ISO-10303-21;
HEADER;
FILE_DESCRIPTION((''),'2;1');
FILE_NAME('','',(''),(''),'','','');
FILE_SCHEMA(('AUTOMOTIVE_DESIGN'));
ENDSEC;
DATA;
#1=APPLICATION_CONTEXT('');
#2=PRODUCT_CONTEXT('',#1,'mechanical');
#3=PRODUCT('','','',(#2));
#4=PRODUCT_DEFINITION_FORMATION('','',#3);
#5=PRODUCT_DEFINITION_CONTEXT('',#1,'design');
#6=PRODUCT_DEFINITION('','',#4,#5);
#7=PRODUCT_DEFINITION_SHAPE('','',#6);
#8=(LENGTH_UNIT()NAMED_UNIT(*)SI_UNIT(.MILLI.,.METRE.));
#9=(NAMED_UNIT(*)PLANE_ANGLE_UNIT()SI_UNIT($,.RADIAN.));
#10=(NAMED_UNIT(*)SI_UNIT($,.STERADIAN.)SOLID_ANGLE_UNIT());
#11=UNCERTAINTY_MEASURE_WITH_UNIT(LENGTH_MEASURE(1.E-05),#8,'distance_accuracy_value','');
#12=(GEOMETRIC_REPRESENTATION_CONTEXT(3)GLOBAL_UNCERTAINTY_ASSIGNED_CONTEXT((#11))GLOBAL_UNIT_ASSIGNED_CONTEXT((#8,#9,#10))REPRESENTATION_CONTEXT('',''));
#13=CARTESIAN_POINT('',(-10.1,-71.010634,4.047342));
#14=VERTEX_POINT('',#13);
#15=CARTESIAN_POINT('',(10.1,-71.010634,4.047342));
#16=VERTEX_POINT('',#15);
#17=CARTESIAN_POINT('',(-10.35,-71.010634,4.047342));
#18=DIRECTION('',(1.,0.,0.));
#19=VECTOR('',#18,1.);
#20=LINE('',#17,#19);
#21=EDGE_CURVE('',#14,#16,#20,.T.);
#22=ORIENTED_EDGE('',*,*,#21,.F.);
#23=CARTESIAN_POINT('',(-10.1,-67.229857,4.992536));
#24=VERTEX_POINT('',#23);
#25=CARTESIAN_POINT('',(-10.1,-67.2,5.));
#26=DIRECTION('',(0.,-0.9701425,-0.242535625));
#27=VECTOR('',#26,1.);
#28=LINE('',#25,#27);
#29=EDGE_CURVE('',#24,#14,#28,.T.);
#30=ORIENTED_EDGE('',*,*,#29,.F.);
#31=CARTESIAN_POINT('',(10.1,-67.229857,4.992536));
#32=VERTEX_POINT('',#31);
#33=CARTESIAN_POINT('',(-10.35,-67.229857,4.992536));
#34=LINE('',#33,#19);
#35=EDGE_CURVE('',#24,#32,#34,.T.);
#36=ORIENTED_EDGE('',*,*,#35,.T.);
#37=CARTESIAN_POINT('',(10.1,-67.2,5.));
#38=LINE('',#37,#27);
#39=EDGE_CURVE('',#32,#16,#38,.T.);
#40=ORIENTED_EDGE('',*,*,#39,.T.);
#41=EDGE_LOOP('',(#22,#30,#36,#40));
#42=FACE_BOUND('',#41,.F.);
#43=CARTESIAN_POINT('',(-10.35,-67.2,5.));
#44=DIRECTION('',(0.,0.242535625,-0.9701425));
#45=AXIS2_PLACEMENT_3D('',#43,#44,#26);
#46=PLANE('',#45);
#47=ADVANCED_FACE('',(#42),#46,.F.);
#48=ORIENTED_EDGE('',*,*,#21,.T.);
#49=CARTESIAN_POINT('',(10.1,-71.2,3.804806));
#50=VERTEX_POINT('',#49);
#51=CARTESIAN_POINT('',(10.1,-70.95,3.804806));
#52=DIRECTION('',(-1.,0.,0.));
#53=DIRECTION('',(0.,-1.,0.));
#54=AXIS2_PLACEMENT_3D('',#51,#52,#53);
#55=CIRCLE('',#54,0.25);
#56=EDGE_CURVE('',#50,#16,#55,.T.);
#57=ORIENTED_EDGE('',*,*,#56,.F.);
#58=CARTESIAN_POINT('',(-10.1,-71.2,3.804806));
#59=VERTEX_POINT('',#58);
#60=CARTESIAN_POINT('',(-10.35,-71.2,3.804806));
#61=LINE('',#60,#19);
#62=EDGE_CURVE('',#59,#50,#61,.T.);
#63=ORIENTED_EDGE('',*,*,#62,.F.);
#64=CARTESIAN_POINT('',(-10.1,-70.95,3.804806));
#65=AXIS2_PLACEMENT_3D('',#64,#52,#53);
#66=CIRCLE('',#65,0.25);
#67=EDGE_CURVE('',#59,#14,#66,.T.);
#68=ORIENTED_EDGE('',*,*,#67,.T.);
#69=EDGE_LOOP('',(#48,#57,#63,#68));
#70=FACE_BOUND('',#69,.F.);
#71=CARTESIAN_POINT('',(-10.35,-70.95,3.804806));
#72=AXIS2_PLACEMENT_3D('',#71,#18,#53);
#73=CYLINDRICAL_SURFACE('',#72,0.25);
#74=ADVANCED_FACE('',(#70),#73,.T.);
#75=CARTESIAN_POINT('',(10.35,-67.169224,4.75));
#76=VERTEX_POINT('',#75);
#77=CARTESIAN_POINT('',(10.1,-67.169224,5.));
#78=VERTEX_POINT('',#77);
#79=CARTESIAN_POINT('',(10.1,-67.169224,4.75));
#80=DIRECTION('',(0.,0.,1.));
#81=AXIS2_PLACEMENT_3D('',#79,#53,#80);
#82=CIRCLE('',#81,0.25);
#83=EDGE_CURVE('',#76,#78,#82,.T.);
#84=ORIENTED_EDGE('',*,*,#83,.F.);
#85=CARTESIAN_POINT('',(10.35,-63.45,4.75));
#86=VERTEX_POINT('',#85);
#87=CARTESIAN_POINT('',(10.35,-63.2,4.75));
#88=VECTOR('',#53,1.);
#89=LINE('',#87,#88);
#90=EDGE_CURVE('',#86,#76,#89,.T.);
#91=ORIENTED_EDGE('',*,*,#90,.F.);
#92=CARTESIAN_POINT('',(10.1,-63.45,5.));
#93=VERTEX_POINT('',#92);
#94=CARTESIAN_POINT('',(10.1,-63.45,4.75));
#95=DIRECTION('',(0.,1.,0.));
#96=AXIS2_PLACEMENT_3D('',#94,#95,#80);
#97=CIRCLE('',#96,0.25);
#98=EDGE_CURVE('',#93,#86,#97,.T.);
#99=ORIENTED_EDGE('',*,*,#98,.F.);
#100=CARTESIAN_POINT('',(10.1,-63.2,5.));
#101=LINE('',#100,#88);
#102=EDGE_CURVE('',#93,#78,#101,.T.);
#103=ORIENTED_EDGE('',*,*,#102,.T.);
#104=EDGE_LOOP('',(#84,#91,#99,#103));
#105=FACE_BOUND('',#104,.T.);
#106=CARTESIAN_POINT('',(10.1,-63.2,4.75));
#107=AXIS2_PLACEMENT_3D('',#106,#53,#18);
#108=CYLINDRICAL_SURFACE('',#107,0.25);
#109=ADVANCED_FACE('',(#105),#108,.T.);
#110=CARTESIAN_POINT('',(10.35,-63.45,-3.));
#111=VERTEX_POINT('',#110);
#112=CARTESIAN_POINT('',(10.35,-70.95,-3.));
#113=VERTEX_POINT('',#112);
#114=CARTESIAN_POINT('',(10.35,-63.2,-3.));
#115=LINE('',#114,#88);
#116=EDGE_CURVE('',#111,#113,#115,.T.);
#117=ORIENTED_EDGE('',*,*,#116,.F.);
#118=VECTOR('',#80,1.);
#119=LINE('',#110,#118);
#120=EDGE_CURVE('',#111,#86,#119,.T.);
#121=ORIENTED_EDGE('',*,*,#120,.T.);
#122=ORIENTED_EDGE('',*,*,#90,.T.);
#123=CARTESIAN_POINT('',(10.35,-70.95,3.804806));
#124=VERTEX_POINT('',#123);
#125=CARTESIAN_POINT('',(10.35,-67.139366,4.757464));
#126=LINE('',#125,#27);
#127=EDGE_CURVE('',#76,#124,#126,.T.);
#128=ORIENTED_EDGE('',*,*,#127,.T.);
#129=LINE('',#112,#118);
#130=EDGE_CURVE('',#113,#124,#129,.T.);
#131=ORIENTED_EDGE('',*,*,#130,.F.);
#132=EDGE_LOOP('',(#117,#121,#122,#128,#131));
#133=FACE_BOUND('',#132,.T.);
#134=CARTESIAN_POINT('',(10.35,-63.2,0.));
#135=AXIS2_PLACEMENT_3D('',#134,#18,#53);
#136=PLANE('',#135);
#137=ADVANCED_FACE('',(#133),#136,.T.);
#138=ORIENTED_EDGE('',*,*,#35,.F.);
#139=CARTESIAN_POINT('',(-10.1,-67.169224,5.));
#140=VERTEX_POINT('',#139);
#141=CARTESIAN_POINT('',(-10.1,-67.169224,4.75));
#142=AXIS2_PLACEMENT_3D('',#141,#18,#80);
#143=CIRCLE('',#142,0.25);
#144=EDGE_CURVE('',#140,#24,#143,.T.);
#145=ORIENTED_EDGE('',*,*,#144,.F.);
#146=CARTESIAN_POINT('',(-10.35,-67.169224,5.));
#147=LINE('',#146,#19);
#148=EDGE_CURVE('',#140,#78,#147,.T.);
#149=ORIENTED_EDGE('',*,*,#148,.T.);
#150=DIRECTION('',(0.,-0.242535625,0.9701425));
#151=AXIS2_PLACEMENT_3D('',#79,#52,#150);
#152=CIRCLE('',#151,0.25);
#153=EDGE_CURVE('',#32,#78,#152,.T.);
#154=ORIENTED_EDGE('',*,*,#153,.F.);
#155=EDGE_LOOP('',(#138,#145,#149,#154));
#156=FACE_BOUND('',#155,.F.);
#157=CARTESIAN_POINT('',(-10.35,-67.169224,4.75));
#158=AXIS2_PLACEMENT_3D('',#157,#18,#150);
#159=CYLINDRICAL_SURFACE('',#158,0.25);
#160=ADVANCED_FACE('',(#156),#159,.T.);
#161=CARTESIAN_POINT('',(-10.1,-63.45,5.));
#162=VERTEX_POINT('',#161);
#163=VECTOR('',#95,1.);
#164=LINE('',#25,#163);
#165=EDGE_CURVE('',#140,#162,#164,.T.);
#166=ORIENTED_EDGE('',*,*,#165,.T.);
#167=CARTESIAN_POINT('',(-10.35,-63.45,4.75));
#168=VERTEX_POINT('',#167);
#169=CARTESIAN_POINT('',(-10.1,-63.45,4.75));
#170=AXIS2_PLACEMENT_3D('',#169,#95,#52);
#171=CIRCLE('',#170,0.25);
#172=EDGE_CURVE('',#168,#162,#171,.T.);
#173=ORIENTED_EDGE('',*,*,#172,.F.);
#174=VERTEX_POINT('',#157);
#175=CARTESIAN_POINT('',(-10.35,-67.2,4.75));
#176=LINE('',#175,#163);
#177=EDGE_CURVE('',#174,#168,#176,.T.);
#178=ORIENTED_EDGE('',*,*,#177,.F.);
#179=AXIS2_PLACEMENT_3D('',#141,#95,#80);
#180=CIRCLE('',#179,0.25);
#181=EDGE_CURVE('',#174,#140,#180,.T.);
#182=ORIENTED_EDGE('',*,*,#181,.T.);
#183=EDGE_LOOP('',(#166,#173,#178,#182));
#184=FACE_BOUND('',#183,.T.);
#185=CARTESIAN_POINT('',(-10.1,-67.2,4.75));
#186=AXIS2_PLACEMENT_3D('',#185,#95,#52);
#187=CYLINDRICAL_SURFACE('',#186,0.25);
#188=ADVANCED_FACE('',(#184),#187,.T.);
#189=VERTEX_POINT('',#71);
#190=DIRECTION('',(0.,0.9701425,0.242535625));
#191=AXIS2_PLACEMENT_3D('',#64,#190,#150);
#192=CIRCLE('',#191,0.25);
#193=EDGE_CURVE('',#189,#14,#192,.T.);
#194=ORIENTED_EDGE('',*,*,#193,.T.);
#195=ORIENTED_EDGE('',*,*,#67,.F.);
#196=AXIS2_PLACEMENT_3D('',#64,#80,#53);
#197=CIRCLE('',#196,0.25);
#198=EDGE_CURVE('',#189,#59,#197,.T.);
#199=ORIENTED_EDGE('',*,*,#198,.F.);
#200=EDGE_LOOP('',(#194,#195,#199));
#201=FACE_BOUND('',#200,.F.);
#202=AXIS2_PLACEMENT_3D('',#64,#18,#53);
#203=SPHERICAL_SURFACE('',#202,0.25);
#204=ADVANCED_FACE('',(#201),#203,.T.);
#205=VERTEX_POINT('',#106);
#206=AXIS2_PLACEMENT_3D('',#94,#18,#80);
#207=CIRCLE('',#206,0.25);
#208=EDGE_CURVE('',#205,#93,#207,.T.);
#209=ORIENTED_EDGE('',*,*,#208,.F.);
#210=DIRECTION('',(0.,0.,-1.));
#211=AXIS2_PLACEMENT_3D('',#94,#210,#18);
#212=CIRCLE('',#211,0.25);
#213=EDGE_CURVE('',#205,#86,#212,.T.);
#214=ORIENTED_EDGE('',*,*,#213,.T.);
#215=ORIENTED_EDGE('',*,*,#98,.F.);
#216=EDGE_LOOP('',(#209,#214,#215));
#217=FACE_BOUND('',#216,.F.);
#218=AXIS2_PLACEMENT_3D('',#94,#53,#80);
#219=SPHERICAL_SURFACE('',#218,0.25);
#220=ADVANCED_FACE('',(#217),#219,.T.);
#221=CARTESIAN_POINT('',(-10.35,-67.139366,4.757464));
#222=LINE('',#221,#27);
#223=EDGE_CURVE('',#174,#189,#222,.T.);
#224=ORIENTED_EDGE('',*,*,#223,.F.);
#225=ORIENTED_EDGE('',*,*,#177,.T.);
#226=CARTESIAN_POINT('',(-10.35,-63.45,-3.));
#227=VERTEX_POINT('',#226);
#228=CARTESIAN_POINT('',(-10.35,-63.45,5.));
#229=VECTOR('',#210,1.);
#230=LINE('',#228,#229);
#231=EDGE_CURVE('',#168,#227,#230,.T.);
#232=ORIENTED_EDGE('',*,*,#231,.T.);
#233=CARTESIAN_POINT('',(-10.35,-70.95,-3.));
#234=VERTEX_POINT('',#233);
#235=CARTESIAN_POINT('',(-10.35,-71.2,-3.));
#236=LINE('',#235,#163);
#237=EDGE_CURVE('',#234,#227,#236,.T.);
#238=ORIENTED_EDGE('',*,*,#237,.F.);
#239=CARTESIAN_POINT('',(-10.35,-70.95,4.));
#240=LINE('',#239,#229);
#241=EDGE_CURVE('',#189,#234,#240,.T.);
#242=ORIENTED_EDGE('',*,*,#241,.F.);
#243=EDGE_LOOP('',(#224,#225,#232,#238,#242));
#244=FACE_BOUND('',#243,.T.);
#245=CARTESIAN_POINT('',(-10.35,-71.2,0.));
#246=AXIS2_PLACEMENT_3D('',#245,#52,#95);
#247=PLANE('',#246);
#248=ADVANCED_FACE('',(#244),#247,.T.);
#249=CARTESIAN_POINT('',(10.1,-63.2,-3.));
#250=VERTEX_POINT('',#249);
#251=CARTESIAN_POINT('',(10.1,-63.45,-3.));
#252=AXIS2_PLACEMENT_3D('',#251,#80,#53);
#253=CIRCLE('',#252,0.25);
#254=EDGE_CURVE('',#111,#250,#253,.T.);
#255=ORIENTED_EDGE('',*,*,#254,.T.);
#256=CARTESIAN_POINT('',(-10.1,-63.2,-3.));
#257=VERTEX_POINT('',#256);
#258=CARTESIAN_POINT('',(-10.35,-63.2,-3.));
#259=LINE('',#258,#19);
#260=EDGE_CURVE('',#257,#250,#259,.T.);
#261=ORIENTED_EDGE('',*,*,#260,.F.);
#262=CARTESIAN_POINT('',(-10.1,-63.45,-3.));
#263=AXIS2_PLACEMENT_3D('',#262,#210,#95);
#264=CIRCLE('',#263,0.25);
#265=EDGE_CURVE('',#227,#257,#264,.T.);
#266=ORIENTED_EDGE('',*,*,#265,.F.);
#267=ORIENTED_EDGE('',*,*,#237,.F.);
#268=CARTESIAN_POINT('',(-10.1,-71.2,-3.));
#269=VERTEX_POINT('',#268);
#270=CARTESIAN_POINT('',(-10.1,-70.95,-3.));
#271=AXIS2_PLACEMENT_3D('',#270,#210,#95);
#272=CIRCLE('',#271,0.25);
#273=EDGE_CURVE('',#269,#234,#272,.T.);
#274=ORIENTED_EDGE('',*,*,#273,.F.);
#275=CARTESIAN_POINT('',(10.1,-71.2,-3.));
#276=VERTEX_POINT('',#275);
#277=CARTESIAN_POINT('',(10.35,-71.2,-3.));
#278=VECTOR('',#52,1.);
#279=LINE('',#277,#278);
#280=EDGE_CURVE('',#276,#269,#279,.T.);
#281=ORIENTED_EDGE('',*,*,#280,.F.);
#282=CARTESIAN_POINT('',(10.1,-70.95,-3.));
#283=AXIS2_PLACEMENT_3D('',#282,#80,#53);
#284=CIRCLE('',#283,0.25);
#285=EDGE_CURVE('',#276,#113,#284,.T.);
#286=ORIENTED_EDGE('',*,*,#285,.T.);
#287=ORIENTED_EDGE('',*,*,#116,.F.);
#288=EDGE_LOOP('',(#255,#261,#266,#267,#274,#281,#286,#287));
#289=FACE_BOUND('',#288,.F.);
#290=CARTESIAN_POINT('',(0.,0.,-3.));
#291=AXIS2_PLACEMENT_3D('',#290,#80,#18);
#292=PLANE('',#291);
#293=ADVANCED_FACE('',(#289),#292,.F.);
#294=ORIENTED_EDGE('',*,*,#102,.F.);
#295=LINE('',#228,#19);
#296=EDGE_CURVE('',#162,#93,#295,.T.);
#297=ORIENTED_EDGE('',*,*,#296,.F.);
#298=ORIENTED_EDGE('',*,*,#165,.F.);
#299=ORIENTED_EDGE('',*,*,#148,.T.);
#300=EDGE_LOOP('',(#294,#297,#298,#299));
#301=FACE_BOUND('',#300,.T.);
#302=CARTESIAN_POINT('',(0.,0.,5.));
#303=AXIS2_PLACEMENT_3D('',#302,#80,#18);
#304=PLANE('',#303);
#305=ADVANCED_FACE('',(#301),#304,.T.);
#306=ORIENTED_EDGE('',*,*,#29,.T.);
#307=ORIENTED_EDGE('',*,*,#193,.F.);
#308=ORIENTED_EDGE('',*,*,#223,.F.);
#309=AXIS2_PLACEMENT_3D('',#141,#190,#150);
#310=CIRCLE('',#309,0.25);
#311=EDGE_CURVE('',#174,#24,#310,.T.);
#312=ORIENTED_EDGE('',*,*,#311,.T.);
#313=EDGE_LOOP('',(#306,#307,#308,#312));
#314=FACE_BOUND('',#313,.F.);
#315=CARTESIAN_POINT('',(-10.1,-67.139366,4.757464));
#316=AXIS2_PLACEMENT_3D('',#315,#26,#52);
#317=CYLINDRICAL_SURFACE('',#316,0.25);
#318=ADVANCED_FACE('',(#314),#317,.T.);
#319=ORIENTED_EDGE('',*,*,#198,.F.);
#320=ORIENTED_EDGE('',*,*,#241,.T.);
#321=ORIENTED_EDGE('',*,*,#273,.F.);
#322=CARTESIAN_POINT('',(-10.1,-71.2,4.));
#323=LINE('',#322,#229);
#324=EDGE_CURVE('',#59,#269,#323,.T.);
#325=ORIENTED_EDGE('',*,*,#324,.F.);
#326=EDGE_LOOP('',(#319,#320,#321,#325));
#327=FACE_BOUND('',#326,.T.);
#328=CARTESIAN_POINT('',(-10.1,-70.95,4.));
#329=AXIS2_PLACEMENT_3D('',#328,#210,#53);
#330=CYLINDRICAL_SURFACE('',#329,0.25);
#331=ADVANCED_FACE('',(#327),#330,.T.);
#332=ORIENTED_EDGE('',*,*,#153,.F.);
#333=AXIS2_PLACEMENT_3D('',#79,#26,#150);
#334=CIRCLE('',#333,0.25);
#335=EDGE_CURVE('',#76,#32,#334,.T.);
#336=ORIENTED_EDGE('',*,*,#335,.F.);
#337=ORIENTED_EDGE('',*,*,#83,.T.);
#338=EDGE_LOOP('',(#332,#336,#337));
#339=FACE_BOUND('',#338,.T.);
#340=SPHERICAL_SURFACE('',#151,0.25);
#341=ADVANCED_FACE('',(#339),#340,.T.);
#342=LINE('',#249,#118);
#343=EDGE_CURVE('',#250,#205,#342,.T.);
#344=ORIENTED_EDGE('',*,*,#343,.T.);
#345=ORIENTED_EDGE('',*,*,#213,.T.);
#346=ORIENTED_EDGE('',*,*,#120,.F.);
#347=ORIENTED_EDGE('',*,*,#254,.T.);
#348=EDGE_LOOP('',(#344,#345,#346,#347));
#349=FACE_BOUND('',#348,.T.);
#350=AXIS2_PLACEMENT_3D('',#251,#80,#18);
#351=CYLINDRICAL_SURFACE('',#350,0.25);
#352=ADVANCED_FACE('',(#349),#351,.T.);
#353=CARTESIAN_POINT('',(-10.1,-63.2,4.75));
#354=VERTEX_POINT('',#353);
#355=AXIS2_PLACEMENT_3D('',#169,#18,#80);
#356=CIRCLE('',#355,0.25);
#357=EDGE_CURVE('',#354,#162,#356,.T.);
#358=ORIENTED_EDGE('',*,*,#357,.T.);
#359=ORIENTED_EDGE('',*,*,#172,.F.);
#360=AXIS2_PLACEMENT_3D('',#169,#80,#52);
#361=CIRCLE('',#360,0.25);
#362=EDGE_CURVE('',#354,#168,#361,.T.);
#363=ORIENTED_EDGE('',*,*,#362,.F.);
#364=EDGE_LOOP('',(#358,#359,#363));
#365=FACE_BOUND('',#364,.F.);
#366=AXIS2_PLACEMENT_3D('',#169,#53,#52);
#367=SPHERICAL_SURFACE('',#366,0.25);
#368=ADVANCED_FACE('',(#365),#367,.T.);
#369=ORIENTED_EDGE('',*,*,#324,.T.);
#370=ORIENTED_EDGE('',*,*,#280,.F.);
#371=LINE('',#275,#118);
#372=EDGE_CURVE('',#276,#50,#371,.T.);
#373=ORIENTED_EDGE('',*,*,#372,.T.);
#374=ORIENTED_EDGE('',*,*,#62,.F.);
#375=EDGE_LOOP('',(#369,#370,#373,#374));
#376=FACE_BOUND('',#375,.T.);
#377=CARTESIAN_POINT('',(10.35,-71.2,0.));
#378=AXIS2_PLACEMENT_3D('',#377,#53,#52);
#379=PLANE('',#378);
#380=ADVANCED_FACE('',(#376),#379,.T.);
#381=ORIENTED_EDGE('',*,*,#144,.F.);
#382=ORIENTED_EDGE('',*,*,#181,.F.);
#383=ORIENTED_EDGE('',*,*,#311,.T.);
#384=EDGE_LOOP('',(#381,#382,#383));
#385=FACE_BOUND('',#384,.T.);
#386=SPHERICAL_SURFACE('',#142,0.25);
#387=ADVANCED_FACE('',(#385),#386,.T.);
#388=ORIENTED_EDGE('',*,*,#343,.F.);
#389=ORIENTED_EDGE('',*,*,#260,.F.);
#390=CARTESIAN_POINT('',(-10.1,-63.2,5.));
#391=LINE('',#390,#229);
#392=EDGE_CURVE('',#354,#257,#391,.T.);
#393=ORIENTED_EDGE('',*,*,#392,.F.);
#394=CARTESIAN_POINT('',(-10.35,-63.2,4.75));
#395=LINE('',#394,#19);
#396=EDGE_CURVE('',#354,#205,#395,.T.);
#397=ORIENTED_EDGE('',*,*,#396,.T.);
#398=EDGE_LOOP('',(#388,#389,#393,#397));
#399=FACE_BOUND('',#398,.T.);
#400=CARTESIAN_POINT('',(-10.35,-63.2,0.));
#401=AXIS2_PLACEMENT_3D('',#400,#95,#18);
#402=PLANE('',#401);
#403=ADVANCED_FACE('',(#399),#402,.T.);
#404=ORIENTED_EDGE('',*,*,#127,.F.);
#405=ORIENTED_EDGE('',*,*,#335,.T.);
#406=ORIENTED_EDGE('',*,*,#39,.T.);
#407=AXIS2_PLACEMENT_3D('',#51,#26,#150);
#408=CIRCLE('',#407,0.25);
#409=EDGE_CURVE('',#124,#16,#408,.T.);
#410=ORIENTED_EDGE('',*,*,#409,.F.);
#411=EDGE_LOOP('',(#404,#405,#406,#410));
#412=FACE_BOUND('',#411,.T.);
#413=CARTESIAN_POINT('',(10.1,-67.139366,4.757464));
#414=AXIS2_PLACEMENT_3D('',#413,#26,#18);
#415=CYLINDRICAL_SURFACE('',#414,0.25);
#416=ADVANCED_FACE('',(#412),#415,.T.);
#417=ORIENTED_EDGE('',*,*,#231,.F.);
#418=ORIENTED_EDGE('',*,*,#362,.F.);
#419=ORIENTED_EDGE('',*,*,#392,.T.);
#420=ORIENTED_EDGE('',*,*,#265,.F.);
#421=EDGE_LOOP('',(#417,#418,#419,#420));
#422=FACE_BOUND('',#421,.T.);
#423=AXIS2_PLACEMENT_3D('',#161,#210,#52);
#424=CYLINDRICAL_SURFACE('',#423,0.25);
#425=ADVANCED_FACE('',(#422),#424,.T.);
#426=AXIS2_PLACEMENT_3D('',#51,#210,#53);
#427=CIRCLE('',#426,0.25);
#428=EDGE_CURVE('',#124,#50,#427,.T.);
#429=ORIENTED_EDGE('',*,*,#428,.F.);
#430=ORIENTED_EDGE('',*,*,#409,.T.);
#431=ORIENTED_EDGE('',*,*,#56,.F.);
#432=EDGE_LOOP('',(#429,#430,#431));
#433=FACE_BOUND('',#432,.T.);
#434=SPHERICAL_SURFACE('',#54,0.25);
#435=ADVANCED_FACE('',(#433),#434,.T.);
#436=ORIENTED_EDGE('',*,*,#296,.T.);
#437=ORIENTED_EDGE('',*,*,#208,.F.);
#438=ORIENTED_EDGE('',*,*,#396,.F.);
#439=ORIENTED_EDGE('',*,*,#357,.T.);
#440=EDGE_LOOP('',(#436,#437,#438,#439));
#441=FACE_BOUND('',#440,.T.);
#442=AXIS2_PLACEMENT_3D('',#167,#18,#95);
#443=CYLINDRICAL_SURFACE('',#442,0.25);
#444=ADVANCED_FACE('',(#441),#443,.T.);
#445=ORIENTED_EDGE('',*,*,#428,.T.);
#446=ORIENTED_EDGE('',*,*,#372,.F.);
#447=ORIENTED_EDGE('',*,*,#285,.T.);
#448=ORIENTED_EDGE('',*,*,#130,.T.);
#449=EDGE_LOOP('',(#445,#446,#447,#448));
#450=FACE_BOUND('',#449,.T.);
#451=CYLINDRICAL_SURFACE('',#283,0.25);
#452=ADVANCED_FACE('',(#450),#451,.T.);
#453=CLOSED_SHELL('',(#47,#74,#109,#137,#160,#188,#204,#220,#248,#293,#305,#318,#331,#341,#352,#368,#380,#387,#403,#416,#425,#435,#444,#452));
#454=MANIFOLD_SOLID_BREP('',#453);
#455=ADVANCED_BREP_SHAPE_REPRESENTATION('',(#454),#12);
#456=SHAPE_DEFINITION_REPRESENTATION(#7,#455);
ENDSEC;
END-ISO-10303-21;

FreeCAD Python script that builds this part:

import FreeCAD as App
import Part
import Sketcher

V = App.Vector
Q = App.Units.Quantity


def edges_at(feature, points):
    """Names of the edges that pass closest to the given points."""
    edges = feature.Shape.Edges
    near = lambda p: min(range(len(edges)), key=lambda i: edges[i].distToShape(Part.Vertex(*p))[0])
    return sorted({f"Edge{near(p) + 1}" for p in points})

doc = App.newDocument("Part")
params = doc.addObject("Spreadsheet::Sheet", "Params")
for row, (alias, value) in enumerate([
    ("sketch1_height", "8 mm"),
    ("sketch1_width", "20.7 mm"),
    ("pad1_length", "5 mm"),
    ("pad1_length2", "3 mm"),
    ("sketch2_width", "4 mm"),
    ("sketch2_height", "1 mm"),
    ("fillet_radius", "0.25 mm"),
], start=1):
    params.set(f"A{row}", alias)
    params.set(f"B{row}", "=" + value)
    params.setAlias(f"B{row}", alias)

body = doc.addObject("PartDesign::Body", "Body")

# Sketch on XY plane
sketch1 = body.newObject("Sketcher::SketchObject", "Sketch")
sketch1.AttachmentSupport = (doc.getObject("XY_Plane"), [""])
sketch1.MapMode = "FlatFace"
sketch1.addGeometry([
    Part.LineSegment(V(-10, -71, 0), V(10, -71, 0)),
    Part.LineSegment(V(10, -71, 0), V(10, -63, 0)),
    Part.LineSegment(V(10, -63, 0), V(-10, -63, 0)),
    Part.LineSegment(V(-10, -63, 0), V(-10, -71, 0)),
], False)
sketch1.addConstraint([
    Sketcher.Constraint("Coincident", 0, 2, 1, 1),
    Sketcher.Constraint("Coincident", 1, 2, 2, 1),
    Sketcher.Constraint("Coincident", 2, 2, 3, 1),
    Sketcher.Constraint("Coincident", 3, 2, 0, 1),
    Sketcher.Constraint("Horizontal", 0),
    Sketcher.Constraint("Vertical", 1),
    Sketcher.Constraint("Horizontal", 2),
    Sketcher.Constraint("Vertical", 3),
    Sketcher.Constraint("DistanceY", 1, 1, 1, 2, Q("8 mm")),
    Sketcher.Constraint("DistanceX", 0, 1, 0, 2, Q("20.7 mm")),
    Sketcher.Constraint("DistanceY", 0, 2, -1, 1, Q("71.2 mm")),
    Sketcher.Constraint("DistanceX", -1, 1, 0, 2, Q("10.35 mm")),
])
sketch1.setExpression("Constraints[8]", "Params.sketch1_height")
sketch1.setExpression("Constraints[9]", "Params.sketch1_width")
pad1 = body.newObject("PartDesign::Pad", "Pad")
pad1.Profile = sketch1
pad1.Type = "TwoLengths"
pad1.setExpression("Length", "Params.pad1_length")
pad1.setExpression("Length2", "Params.pad1_length2")

# Sketch on YZ plane
sketch2 = body.newObject("Sketcher::SketchObject", "Sketch001")
sketch2.AttachmentSupport = (doc.getObject("YZ_Plane"), [""])
sketch2.MapMode = "FlatFace"
sketch2.AttachmentOffset = App.Placement(V(0, 0, -10.35), App.Rotation())
sketch2.addGeometry([
    Part.LineSegment(V(-71.2, 4, 0), V(-71.2, 5, 0)),
    Part.LineSegment(V(-71.2, 5, 0), V(-67.2, 5, 0)),
    Part.LineSegment(V(-67.2, 5, 0), V(-71.2, 4, 0)),
], False)
sketch2.addConstraint([
    Sketcher.Constraint("Coincident", 0, 2, 1, 1),
    Sketcher.Constraint("Coincident", 1, 2, 2, 1),
    Sketcher.Constraint("Coincident", 2, 2, 0, 1),
    Sketcher.Constraint("Vertical", 0),
    Sketcher.Constraint("Horizontal", 1),
    Sketcher.Constraint("DistanceX", 1, 1, 1, 2, Q("4 mm")),
    Sketcher.Constraint("DistanceY", 0, 1, 0, 2, Q("1 mm")),
    Sketcher.Constraint("DistanceY", -1, 1, 0, 2, Q("5 mm")),
    Sketcher.Constraint("DistanceX", 0, 2, -1, 1, Q("71.2 mm")),
])
sketch2.setExpression("Constraints[5]", "Params.sketch2_width")
sketch2.setExpression("Constraints[6]", "Params.sketch2_height")
pocket1 = body.newObject("PartDesign::Pocket", "Pocket")
pocket1.Profile = sketch2
pocket1.Type = "UpToFirst"
pocket1.Reversed = True
doc.recompute()

fillet = body.newObject("PartDesign::Fillet", "Fillet")
fillet.Base = (pocket1, edges_at(pocket1, [
    (-10.35, -65.2, 5),
    (-10.35, -69.2, 4.5),
    (10.35, -69.2, 4.5),
    (10.35, -65.2, 5),
    (0, -67.2, 5),
    (0, -71.2, 4),
    (-10.35, -71.2, 0.5),
    (10.35, -71.2, 0.5),
    (-10.35, -63.2, 1),
    (0, -63.2, 5),
    (10.35, -63.2, 1),
]))
fillet.setExpression("Radius", "Params.fillet_radius")

doc.recompute()
